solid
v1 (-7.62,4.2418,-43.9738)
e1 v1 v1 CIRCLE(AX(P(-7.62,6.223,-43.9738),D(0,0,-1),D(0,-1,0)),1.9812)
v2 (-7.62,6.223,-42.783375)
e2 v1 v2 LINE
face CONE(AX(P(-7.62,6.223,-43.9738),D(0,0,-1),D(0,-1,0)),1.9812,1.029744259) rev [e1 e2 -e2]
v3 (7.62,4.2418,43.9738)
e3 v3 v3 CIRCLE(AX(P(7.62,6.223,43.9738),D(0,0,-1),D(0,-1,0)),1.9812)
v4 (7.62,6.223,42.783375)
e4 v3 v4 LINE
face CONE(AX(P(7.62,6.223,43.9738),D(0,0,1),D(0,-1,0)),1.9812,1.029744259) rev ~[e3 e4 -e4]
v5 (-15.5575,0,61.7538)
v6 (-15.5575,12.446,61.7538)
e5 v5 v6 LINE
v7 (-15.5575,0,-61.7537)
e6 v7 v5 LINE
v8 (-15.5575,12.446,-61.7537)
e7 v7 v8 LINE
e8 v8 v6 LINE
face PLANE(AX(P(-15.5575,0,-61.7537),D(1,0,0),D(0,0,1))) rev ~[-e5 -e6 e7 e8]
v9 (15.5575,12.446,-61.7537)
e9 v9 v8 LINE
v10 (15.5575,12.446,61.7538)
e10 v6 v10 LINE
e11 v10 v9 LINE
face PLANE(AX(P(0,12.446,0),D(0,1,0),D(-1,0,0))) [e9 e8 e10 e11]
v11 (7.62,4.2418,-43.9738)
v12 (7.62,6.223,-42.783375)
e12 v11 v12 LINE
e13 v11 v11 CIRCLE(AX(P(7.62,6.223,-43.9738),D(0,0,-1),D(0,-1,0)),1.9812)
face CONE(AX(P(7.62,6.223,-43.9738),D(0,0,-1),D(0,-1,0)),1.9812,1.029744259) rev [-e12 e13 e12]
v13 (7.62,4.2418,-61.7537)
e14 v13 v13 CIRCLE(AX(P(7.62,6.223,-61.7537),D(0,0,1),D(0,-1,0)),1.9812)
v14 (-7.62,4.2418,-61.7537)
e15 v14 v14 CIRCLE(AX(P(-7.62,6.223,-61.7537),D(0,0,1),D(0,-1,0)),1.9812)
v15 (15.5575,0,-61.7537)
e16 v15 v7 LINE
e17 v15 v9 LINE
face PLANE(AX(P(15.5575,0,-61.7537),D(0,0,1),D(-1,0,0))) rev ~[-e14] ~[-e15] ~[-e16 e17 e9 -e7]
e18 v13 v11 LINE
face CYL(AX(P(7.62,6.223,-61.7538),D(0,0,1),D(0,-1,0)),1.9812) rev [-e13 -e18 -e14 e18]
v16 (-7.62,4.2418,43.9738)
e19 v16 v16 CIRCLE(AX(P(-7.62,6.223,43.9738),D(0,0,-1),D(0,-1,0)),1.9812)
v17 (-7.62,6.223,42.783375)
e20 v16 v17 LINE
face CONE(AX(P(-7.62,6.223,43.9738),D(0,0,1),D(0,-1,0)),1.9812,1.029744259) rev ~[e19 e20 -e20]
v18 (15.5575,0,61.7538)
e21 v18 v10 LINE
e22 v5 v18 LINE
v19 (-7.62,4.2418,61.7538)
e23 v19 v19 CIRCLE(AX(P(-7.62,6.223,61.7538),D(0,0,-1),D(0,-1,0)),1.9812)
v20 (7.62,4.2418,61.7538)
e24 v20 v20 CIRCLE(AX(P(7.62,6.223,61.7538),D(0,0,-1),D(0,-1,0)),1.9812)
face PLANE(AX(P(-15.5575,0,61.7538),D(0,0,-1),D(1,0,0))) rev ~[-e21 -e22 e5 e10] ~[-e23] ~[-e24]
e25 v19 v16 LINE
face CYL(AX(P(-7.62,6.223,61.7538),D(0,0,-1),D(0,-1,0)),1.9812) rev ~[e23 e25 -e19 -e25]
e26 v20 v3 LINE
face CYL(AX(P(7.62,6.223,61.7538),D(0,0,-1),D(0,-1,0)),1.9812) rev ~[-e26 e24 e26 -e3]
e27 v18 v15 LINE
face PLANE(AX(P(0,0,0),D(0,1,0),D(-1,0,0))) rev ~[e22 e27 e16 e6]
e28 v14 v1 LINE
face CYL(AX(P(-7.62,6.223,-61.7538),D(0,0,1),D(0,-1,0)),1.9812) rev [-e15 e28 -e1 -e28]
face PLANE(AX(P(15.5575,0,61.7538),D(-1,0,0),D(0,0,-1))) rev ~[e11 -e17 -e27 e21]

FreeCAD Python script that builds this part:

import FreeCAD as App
import Part
import Sketcher

V = App.Vector
Q = App.Units.Quantity

doc = App.newDocument("Part")
body = doc.addObject("PartDesign::Body", "Body")

sketch1 = doc.addObject("Sketcher::SketchObject", "Sketch")
body.addObject(sketch1)
sketch1.AttachmentSupport = (doc.XZ_Plane, [""])
sketch1.MapMode = "FlatFace"
sketch1.addGeometry([
    Part.LineSegment(V(15.5575, 61.7538, 0), V(15.5575, -61.7537, 0)),
    Part.LineSegment(V(15.5575, -61.7537, 0), V(-15.5575, -61.7537, 0)),
    Part.LineSegment(V(-15.5575, -61.7537, 0), V(-15.5575, 61.7538, 0)),
    Part.LineSegment(V(-15.5575, 61.7538, 0), V(15.5575, 61.7538, 0)),
], False)
sketch1.addConstraint([
    Sketcher.Constraint("Coincident", 0, 2, 1, 1),
    Sketcher.Constraint("Coincident", 1, 2, 2, 1),
    Sketcher.Constraint("Coincident", 2, 2, 3, 1),
    Sketcher.Constraint("Coincident", 3, 2, 0, 1),
    Sketcher.Constraint("Vertical", 0),
    Sketcher.Constraint("Horizontal", 1),
    Sketcher.Constraint("Vertical", 2),
    Sketcher.Constraint("Horizontal", 3),
    Sketcher.Constraint("Symmetric", 0, 2, 2, 2, -1, 1),
    Sketcher.Constraint("DistanceX", 1, 2, 1, 1, Q("1.225 in")),
    Sketcher.Constraint("DistanceY", 0, 2, 0, 1, Q("4.8625 in")),
])
pad1 = doc.addObject("PartDesign::Pad", "Pad")
body.addObject(pad1)
pad1.Profile = sketch1
pad1.Length = Q("0.49 in")
pad1.Reversed = True

sketch2 = doc.addObject("Sketcher::SketchObject", "Sketch001")
body.addObject(sketch2)
sketch2.AttachmentSupport = (doc.XY_Plane, [""])
sketch2.MapMode = "FlatFace"
sketch2.AttachmentOffset = App.Placement(V(0, 0, 61.7538), App.Rotation())
sketch2.addGeometry([
    Part.Circle(V(-7.62, 6.223, 0), V(0, 0, 1), 1.9812),
    Part.Circle(V(7.62, 6.223, 0), V(0, 0, 1), 1.9812),
], False)
sketch2.addConstraint([
    Sketcher.Constraint("Equal", 0, 1),
    Sketcher.Constraint("Symmetric", 0, 3, 1, 3, -2),
    Sketcher.Constraint("Diameter", 0, Q("0.156 in")),
    Sketcher.Constraint("DistanceX", 0, 3, -1, 1, Q("0.3 in")),
    Sketcher.Constraint("DistanceY", -1, 1, 0, 3, Q("0.245 in")),
])
doc.recompute()
hole = doc.addObject("PartDesign::Hole", "Hole")
body.addObject(hole)
hole.Profile = sketch2
hole.ThreadType = "None"
hole.Diameter = Q("0.156 in")
hole.DepthType = "Dimension"
hole.Depth = Q("0.7 in")
hole.DrillPoint = "Angled"
hole.DrillPointAngle = 118
doc.recompute()

mirrored = doc.addObject("PartDesign::Mirrored", "Mirrored")
body.addObject(mirrored)
mirrored.Originals = [hole]
mirrored.MirrorPlane = (doc.XY_Plane, [""])
body.Tip = mirrored

doc.recompute()
